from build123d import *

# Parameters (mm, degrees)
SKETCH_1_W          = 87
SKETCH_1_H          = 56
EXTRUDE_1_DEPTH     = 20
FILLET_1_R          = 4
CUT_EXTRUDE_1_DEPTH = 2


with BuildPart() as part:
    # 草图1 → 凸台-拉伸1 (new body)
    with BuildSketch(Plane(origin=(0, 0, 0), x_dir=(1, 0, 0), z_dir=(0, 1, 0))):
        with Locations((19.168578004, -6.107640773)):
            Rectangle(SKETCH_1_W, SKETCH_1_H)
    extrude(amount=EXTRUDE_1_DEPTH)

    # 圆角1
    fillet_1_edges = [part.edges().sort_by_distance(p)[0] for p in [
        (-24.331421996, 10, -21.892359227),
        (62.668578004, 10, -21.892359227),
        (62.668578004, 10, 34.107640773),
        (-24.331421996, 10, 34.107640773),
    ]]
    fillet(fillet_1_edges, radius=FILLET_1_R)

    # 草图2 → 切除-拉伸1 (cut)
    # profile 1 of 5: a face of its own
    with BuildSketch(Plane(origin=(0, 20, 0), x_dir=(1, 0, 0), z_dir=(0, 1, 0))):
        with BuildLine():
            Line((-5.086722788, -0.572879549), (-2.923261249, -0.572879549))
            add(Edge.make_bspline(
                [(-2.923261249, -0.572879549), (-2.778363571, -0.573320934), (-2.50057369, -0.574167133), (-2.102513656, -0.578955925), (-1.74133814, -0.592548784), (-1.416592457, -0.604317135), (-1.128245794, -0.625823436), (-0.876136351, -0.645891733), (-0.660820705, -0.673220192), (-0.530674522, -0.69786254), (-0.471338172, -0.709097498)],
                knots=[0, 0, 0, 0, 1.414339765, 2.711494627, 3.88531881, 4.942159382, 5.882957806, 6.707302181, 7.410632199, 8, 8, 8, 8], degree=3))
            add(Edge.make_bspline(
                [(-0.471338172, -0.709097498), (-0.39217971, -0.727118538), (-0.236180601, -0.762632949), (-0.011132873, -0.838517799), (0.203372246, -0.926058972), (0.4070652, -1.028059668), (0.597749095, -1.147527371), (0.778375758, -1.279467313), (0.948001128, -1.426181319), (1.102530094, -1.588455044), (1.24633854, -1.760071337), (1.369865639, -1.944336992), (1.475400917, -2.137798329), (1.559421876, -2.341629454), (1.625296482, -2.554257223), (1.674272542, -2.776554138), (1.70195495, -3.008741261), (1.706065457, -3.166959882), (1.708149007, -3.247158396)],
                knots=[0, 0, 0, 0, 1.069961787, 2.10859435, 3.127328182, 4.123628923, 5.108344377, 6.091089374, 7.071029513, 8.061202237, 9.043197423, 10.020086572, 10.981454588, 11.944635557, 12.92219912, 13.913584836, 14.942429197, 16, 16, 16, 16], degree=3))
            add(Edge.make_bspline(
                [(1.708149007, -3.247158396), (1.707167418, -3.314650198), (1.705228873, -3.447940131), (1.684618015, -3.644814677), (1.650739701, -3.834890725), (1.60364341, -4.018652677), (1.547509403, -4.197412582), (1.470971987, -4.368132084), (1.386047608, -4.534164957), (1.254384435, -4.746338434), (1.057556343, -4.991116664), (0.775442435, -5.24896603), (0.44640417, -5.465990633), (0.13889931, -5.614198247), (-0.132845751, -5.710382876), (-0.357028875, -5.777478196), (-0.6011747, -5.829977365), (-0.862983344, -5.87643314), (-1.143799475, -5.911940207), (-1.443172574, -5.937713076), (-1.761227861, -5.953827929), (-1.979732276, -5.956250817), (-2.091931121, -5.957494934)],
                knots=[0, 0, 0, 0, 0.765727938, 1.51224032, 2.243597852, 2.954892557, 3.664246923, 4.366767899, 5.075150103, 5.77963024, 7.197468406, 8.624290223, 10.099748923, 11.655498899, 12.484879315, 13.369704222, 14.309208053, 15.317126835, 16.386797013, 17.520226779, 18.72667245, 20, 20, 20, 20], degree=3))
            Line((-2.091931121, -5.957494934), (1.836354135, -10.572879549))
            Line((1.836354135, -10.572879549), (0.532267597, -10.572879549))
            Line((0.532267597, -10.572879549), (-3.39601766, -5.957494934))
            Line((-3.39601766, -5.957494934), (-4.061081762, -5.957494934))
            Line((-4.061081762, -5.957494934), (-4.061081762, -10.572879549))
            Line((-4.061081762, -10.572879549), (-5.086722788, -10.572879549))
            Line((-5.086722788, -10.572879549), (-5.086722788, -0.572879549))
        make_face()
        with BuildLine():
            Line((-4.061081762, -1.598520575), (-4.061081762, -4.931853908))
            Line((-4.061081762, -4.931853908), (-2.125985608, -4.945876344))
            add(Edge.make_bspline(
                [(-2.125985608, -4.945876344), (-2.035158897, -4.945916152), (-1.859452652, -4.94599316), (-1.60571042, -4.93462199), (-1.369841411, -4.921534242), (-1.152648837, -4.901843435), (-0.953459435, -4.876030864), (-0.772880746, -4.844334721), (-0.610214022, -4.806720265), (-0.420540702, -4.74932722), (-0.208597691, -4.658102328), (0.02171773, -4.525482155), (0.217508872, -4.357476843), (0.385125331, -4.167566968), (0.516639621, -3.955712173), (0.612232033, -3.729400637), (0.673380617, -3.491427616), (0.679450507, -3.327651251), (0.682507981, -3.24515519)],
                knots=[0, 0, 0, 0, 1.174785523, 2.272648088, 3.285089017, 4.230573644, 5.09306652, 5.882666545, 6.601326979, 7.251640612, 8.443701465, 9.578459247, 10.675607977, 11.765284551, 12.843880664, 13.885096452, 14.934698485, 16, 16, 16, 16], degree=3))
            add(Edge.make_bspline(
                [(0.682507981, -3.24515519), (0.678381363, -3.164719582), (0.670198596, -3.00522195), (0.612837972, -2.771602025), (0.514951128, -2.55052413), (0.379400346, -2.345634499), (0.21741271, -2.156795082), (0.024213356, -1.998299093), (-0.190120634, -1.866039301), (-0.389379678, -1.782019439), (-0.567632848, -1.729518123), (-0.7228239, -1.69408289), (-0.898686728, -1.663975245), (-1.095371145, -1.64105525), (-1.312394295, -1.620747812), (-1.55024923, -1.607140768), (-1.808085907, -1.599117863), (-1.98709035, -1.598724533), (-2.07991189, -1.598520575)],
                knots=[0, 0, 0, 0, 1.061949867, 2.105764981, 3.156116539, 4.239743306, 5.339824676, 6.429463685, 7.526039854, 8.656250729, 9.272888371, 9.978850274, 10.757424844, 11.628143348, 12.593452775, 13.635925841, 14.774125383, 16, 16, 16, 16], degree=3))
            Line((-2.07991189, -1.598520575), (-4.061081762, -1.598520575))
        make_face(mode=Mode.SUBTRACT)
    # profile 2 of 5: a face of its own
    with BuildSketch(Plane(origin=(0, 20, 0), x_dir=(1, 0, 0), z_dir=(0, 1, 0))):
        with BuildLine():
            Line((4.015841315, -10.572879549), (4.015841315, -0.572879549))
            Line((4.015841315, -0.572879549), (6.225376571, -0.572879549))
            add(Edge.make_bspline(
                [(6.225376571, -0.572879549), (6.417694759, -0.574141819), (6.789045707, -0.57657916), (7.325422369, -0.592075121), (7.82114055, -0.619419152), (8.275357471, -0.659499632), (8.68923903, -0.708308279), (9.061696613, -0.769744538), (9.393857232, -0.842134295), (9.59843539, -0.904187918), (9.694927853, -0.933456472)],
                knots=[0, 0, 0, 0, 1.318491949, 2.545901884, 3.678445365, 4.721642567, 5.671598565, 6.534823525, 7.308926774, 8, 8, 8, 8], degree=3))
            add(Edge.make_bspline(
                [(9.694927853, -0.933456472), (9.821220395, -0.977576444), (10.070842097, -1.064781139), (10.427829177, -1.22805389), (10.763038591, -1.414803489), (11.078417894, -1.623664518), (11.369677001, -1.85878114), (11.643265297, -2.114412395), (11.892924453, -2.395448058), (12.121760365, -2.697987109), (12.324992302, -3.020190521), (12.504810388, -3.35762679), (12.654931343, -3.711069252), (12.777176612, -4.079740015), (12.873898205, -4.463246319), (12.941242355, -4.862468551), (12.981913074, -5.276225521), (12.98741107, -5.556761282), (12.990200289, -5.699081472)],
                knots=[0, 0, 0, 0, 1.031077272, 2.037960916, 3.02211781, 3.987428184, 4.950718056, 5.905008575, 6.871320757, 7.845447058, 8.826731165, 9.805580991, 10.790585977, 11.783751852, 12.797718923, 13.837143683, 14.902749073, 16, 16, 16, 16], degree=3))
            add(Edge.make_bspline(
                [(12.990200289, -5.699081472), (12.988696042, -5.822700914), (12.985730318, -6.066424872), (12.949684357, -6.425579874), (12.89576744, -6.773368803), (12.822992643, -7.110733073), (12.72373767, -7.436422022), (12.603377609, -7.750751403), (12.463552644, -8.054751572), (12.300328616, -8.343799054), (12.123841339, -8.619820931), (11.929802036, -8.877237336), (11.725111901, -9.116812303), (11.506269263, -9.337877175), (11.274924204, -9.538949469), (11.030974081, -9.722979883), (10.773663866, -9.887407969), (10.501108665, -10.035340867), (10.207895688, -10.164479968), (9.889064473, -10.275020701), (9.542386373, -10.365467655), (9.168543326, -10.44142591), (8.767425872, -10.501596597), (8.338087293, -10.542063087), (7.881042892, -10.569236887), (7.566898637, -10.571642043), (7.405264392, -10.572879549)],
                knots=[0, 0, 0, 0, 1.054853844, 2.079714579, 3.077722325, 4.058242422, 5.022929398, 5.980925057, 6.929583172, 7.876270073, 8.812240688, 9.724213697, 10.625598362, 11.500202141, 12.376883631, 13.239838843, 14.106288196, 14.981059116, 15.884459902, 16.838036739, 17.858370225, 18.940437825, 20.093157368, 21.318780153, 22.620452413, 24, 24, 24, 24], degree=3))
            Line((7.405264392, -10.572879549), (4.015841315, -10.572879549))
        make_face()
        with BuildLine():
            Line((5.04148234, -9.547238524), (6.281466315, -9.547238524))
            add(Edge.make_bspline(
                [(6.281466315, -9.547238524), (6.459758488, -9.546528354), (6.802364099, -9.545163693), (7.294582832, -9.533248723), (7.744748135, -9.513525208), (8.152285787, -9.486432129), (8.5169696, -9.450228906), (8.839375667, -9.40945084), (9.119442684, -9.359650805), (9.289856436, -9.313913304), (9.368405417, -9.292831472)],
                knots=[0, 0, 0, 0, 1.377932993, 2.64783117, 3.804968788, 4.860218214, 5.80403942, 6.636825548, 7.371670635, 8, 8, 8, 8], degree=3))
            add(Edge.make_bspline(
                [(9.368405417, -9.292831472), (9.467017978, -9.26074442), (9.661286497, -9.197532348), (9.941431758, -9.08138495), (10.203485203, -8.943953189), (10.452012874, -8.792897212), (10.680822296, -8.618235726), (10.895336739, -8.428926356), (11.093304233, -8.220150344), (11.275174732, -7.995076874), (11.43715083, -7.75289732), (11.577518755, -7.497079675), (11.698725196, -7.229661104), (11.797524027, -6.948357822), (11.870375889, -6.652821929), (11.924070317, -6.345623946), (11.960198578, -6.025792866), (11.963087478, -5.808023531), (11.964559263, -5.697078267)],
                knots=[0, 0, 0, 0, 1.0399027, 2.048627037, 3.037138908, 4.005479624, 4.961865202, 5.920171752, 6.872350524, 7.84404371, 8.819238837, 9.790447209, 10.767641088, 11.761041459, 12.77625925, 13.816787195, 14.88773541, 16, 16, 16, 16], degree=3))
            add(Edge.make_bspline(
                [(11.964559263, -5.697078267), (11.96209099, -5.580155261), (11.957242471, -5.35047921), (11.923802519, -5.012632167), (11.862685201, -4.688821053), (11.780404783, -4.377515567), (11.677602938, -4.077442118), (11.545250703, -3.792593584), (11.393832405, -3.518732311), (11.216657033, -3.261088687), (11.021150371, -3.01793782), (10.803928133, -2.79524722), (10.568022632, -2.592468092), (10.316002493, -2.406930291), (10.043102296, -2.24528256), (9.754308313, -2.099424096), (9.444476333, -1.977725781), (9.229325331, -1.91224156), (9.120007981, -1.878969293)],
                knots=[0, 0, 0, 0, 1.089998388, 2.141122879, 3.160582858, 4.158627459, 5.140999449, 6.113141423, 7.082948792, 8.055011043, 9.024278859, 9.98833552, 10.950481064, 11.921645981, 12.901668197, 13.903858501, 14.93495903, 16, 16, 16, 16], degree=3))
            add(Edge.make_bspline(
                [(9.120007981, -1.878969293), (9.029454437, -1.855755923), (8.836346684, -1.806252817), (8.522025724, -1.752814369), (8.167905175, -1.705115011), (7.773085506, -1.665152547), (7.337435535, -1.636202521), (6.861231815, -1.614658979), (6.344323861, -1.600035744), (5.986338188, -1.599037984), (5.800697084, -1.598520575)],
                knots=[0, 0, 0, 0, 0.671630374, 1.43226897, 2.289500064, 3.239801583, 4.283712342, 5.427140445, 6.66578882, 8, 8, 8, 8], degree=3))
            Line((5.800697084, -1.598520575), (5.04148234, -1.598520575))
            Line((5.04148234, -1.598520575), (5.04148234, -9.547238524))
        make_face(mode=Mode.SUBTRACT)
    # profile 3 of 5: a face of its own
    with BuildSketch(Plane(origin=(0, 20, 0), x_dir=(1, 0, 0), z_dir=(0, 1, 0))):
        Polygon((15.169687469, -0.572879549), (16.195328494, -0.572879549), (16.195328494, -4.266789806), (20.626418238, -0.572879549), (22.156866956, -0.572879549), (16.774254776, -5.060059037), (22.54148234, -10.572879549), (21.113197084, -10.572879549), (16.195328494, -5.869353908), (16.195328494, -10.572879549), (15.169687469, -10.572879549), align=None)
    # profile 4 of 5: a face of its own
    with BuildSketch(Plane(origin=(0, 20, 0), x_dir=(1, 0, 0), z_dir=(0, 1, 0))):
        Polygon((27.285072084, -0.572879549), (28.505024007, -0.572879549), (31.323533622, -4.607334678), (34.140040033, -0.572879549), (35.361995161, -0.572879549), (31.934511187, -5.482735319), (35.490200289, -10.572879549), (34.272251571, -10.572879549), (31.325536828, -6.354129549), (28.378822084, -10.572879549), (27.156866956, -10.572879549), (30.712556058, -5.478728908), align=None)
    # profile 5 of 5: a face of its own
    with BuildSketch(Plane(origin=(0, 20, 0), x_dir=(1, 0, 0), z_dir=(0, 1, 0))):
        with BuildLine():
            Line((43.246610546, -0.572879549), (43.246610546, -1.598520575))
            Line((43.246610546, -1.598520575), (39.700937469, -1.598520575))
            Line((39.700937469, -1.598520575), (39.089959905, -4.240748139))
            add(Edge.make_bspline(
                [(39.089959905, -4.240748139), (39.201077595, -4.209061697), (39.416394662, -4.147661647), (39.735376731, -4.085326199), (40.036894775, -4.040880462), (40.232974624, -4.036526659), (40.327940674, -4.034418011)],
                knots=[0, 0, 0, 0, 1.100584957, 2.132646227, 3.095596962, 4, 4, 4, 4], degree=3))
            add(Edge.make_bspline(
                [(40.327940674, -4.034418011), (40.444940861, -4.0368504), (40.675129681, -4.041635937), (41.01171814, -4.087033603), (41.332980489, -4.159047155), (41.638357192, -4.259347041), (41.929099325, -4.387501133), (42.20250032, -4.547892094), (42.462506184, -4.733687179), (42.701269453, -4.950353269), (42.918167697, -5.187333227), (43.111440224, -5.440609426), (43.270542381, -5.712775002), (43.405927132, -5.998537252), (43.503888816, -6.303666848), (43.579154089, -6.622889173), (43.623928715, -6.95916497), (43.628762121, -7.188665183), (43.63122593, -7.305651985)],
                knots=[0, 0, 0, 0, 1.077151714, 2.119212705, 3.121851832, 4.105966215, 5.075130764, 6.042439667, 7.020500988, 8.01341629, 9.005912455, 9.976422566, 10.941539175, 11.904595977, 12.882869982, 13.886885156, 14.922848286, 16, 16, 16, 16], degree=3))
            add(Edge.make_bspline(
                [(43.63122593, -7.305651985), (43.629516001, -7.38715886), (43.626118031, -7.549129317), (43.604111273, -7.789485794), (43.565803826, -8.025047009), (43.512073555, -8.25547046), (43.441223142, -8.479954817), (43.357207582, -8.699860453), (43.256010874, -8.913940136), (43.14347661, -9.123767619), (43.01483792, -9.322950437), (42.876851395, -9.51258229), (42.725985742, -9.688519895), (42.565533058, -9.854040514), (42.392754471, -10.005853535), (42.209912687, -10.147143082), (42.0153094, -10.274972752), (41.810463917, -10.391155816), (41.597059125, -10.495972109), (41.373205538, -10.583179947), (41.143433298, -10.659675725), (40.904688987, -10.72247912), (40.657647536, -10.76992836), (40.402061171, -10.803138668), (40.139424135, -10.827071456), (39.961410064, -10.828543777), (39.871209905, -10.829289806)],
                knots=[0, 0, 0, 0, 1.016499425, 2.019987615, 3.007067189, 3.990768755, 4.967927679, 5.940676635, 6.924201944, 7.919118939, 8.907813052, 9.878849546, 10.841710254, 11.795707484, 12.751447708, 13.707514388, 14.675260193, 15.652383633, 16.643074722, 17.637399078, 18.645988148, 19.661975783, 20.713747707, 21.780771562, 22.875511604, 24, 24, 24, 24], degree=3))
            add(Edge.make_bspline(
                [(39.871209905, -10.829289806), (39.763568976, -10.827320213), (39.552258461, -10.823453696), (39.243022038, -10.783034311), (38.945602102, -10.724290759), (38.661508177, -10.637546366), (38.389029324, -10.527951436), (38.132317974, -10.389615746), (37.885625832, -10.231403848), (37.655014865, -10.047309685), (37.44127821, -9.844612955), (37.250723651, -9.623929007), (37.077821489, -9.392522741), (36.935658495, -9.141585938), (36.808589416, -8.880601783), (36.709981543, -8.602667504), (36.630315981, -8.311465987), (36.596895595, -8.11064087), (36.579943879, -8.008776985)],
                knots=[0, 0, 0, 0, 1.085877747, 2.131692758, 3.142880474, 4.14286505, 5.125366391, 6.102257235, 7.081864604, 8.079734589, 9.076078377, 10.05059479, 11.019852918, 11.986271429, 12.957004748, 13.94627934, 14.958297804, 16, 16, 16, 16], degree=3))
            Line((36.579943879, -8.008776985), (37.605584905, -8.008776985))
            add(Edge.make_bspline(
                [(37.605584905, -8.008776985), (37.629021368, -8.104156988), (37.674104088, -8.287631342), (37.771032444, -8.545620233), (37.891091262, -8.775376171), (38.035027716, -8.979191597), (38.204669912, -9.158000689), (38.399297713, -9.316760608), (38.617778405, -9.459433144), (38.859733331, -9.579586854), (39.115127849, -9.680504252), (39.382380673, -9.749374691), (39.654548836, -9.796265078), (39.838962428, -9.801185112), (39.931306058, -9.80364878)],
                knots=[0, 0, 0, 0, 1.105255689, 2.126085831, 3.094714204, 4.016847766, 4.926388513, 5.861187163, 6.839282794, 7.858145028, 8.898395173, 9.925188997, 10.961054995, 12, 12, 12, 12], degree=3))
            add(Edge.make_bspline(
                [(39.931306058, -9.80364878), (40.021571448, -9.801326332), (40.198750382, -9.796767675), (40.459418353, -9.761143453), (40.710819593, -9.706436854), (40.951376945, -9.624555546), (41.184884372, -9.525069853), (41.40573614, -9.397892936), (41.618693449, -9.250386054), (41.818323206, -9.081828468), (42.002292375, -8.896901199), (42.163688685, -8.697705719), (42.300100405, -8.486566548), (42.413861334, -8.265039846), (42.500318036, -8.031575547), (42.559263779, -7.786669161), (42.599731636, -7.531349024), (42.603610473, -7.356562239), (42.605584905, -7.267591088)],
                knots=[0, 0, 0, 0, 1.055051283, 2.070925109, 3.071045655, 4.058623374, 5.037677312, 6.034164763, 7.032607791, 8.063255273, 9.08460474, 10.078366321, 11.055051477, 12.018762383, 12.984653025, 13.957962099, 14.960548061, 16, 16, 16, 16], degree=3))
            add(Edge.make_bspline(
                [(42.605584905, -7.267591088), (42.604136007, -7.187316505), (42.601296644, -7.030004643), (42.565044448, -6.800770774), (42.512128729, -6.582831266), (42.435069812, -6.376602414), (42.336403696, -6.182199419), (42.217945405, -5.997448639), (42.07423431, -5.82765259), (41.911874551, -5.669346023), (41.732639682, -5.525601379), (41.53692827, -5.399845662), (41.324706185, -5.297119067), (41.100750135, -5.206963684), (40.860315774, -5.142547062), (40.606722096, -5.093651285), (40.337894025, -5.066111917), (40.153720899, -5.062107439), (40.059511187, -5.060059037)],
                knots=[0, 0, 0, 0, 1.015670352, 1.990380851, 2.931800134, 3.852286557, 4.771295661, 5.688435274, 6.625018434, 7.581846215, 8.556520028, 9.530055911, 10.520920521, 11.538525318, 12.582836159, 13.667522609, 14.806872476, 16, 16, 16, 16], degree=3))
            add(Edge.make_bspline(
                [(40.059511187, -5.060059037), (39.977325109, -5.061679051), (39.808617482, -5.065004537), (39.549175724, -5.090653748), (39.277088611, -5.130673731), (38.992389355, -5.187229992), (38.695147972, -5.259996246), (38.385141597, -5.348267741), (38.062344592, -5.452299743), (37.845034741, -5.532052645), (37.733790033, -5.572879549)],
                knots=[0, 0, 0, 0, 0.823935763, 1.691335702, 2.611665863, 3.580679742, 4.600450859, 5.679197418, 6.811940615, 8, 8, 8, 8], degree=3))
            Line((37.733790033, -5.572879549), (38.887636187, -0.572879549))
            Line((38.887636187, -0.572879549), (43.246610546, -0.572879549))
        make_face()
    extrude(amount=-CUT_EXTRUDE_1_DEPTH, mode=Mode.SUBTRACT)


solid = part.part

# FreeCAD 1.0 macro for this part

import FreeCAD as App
import Part
import Sketcher
Q = App.Units.Quantity


def edges_at(feature, points):
    """Names of the edges that pass closest to the given points."""
    edges = feature.Shape.Edges
    near = lambda p: min(range(len(edges)), key=lambda i: edges[i].distToShape(Part.Vertex(*p))[0])
    return sorted({f"Edge{near(p) + 1}" for p in points})


def add_polygon(sketch, points):
    """Adds a closed chain of lines whose ends are joined by coincident constraints."""
    first, n = sketch.GeometryCount, len(points)
    for a, b in zip(points, points[1:] + points[:1]):
        sketch.addGeometry(Part.LineSegment(App.Vector(*a, 0), App.Vector(*b, 0)), False)
    for i in range(n):
        sketch.addConstraint(Sketcher.Constraint("Coincident", first + i, 2, first + (i + 1) % n, 1))

doc = App.newDocument("Part")
body = doc.addObject("PartDesign::Body", "Body")

sketch1 = doc.addObject("Sketcher::SketchObject", "Sketch")
body.addObject(sketch1)
sketch1.AttachmentSupport = (doc.XZ_Plane, [""])
sketch1.MapMode = "FlatFace"
add_polygon(sketch1, [(-24, -22), (-24, 34), (63, 34), (63, -22)])
sketch1.addConstraint([
    Sketcher.Constraint("Vertical", 0),
    Sketcher.Constraint("Horizontal", 1),
    Sketcher.Constraint("Vertical", 2),
    Sketcher.Constraint("Horizontal", 3),
    Sketcher.Constraint("DistanceX", 1, 1, 1, 2, Q("87 mm")),
    Sketcher.Constraint("DistanceY", 0, 1, 0, 2, Q("56 mm")),
    Sketcher.Constraint("DistanceX", 0, 2, -1, 1, Q("24.331422 mm")),
    Sketcher.Constraint("DistanceY", -1, 1, 0, 2, Q("34.107641 mm")),
])
pad1 = doc.addObject("PartDesign::Pad", "Pad")
body.addObject(pad1)
pad1.Profile = sketch1
pad1.Length = 20
pad1.Reversed = True
doc.recompute()

fillet = doc.addObject("PartDesign::Fillet", "Fillet")
body.addObject(fillet)
fillet.Base = (pad1, edges_at(pad1, [
    (-24.331, 10, -21.892),
    (62.669, 10, -21.892),
    (62.669, 10, 34.108),
    (-24.331, 10, 34.108),
]))
fillet.Radius = 4

sketch2 = doc.addObject("Sketcher::SketchObject", "Sketch001")
body.addObject(sketch2)
sketch2.AttachmentSupport = (doc.XZ_Plane, [""])
sketch2.MapMode = "FlatFace"
sketch2.AttachmentOffset = App.Placement(App.Vector(0, 0, -20), App.Rotation())
sketch2.addGeometry(Part.LineSegment(App.Vector(-2.923261, 0.57288, 0), App.Vector(-5.086723, 0.57288, 0)), False)
sketch2.addGeometry(Part.LineSegment(App.Vector(-5.086723, 0.57288, 0), App.Vector(-5.086723, 10.57288, 0)), False)
sketch2.addGeometry(Part.LineSegment(App.Vector(-5.086723, 10.57288, 0), App.Vector(-4.061082, 10.57288, 0)), False)
sketch2.addGeometry(Part.LineSegment(App.Vector(-4.061082, 10.57288, 0), App.Vector(-4.061082, 5.957495, 0)), False)
sketch2.addGeometry(Part.LineSegment(App.Vector(-4.061082, 5.957495, 0), App.Vector(-3.396018, 5.957495, 0)), False)
sketch2.addGeometry(Part.LineSegment(App.Vector(-3.396018, 5.957495, 0), App.Vector(0.532268, 10.57288, 0)), False)
sketch2.addGeometry(Part.LineSegment(App.Vector(0.532268, 10.57288, 0), App.Vector(1.836354, 10.57288, 0)), False)
sketch2.addGeometry(Part.LineSegment(App.Vector(1.836354, 10.57288, 0), App.Vector(-2.091931, 5.957495, 0)), False)
sketch2.addGeometry(Part.BSplineCurve([App.Vector(1.708149, 3.247158, 0), App.Vector(1.707167, 3.31465, 0), App.Vector(1.705229, 3.44794, 0), App.Vector(1.684618, 3.644815, 0), App.Vector(1.65074, 3.834891, 0), App.Vector(1.603643, 4.018653, 0), App.Vector(1.547509, 4.197413, 0), App.Vector(1.470972, 4.368132, 0), App.Vector(1.386048, 4.534165, 0), App.Vector(1.254384, 4.746338, 0), App.Vector(1.057556, 4.991117, 0), App.Vector(0.775442, 5.248966, 0), App.Vector(0.446404, 5.465991, 0), App.Vector(0.138899, 5.614198, 0), App.Vector(-0.132846, 5.710383, 0), App.Vector(-0.357029, 5.777478, 0), App.Vector(-0.601175, 5.829977, 0), App.Vector(-0.862983, 5.876433, 0), App.Vector(-1.143799, 5.91194, 0), App.Vector(-1.443173, 5.937713, 0), App.Vector(-1.761228, 5.953828, 0), App.Vector(-1.979732, 5.956251, 0), App.Vector(-2.091931, 5.957495, 0)], [4, 1, 1, 1, 1, 1, 1, 1, 1, 1, 1, 1, 1, 1, 1, 1, 1, 1, 1, 1, 4], [0, 0.765727938, 1.51224032, 2.243597852, 2.954892557, 3.664246923, 4.366767899, 5.075150103, 5.77963024, 7.197468406, 8.624290223, 10.099748923, 11.655498899, 12.484879315, 13.369704222, 14.309208053, 15.317126835, 16.386797013, 17.520226779, 18.72667245, 20], False, 3, [1, 1, 1, 1, 1, 1, 1, 1, 1, 1, 1, 1, 1, 1, 1, 1, 1, 1, 1, 1, 1, 1, 1], False), False)
sketch2.addGeometry(Part.BSplineCurve([App.Vector(-0.471338, 0.709097, 0), App.Vector(-0.39218, 0.727119, 0), App.Vector(-0.236181, 0.762633, 0), App.Vector(-0.011133, 0.838518, 0), App.Vector(0.203372, 0.926059, 0), App.Vector(0.407065, 1.02806, 0), App.Vector(0.597749, 1.147527, 0), App.Vector(0.778376, 1.279467, 0), App.Vector(0.948001, 1.426181, 0), App.Vector(1.10253, 1.588455, 0), App.Vector(1.246339, 1.760071, 0), App.Vector(1.369866, 1.944337, 0), App.Vector(1.475401, 2.137798, 0), App.Vector(1.559422, 2.341629, 0), App.Vector(1.625296, 2.554257, 0), App.Vector(1.674273, 2.776554, 0), App.Vector(1.701955, 3.008741, 0), App.Vector(1.706065, 3.16696, 0), App.Vector(1.708149, 3.247158, 0)], [4, 1, 1, 1, 1, 1, 1, 1, 1, 1, 1, 1, 1, 1, 1, 1, 4], [0, 1.069961787, 2.10859435, 3.127328182, 4.123628923, 5.108344377, 6.091089374, 7.071029513, 8.061202237, 9.043197423, 10.020086572, 10.981454588, 11.944635557, 12.92219912, 13.913584836, 14.942429197, 16], False, 3, [1, 1, 1, 1, 1, 1, 1, 1, 1, 1, 1, 1, 1, 1, 1, 1, 1, 1, 1], False), False)
sketch2.addGeometry(Part.BSplineCurve([App.Vector(-2.923261, 0.57288, 0), App.Vector(-2.778364, 0.573321, 0), App.Vector(-2.500574, 0.574167, 0), App.Vector(-2.102514, 0.578956, 0), App.Vector(-1.741338, 0.592549, 0), App.Vector(-1.416592, 0.604317, 0), App.Vector(-1.128246, 0.625823, 0), App.Vector(-0.876136, 0.645892, 0), App.Vector(-0.660821, 0.67322, 0), App.Vector(-0.530675, 0.697863, 0), App.Vector(-0.471338, 0.709097, 0)], [4, 1, 1, 1, 1, 1, 1, 1, 4], [0, 1.414339765, 2.711494627, 3.88531881, 4.942159382, 5.882957806, 6.707302181, 7.410632199, 8], False, 3, [1, 1, 1, 1, 1, 1, 1, 1, 1, 1, 1], False), False)
sketch2.addGeometry(Part.LineSegment(App.Vector(-4.061082, 1.598521, 0), App.Vector(-2.079912, 1.598521, 0)), False)
sketch2.addGeometry(Part.BSplineCurve([App.Vector(0.682508, 3.245155, 0), App.Vector(0.678381, 3.16472, 0), App.Vector(0.670199, 3.005222, 0), App.Vector(0.612838, 2.771602, 0), App.Vector(0.514951, 2.550524, 0), App.Vector(0.3794, 2.345634, 0), App.Vector(0.217413, 2.156795, 0), App.Vector(0.024213, 1.998299, 0), App.Vector(-0.190121, 1.866039, 0), App.Vector(-0.38938, 1.782019, 0), App.Vector(-0.567633, 1.729518, 0), App.Vector(-0.722824, 1.694083, 0), App.Vector(-0.898687, 1.663975, 0), App.Vector(-1.095371, 1.641055, 0), App.Vector(-1.312394, 1.620748, 0), App.Vector(-1.550249, 1.607141, 0), App.Vector(-1.808086, 1.599118, 0), App.Vector(-1.98709, 1.598725, 0), App.Vector(-2.079912, 1.598521, 0)], [4, 1, 1, 1, 1, 1, 1, 1, 1, 1, 1, 1, 1, 1, 1, 1, 4], [0, 1.061949867, 2.105764981, 3.156116539, 4.239743306, 5.339824676, 6.429463685, 7.526039854, 8.656250729, 9.272888371, 9.978850274, 10.757424844, 11.628143348, 12.593452775, 13.635925841, 14.774125383, 16], False, 3, [1, 1, 1, 1, 1, 1, 1, 1, 1, 1, 1, 1, 1, 1, 1, 1, 1, 1, 1], False), False)
sketch2.addGeometry(Part.BSplineCurve([App.Vector(-2.125986, 4.945876, 0), App.Vector(-2.035159, 4.945916, 0), App.Vector(-1.859453, 4.945993, 0), App.Vector(-1.60571, 4.934622, 0), App.Vector(-1.369841, 4.921534, 0), App.Vector(-1.152649, 4.901843, 0), App.Vector(-0.953459, 4.876031, 0), App.Vector(-0.772881, 4.844335, 0), App.Vector(-0.610214, 4.80672, 0), App.Vector(-0.420541, 4.749327, 0), App.Vector(-0.208598, 4.658102, 0), App.Vector(0.021718, 4.525482, 0), App.Vector(0.217509, 4.357477, 0), App.Vector(0.385125, 4.167567, 0), App.Vector(0.51664, 3.955712, 0), App.Vector(0.612232, 3.729401, 0), App.Vector(0.673381, 3.491428, 0), App.Vector(0.679451, 3.327651, 0), App.Vector(0.682508, 3.245155, 0)], [4, 1, 1, 1, 1, 1, 1, 1, 1, 1, 1, 1, 1, 1, 1, 1, 4], [0, 1.174785523, 2.272648088, 3.285089017, 4.230573644, 5.09306652, 5.882666545, 6.601326979, 7.251640612, 8.443701465, 9.578459247, 10.675607977, 11.765284551, 12.843880664, 13.885096452, 14.934698485, 16], False, 3, [1, 1, 1, 1, 1, 1, 1, 1, 1, 1, 1, 1, 1, 1, 1, 1, 1, 1, 1], False), False)
sketch2.addGeometry(Part.LineSegment(App.Vector(-2.125986, 4.945876, 0), App.Vector(-4.061082, 4.931854, 0)), False)
sketch2.addGeometry(Part.LineSegment(App.Vector(-4.061082, 4.931854, 0), App.Vector(-4.061082, 1.598521, 0)), False)
sketch2.addGeometry(Part.LineSegment(App.Vector(4.015841, 0.57288, 0), App.Vector(4.015841, 10.57288, 0)), False)
sketch2.addGeometry(Part.LineSegment(App.Vector(4.015841, 10.57288, 0), App.Vector(7.405264, 10.57288, 0)), False)
sketch2.addGeometry(Part.BSplineCurve([App.Vector(12.9902, 5.699081, 0), App.Vector(12.988696, 5.822701, 0), App.Vector(12.98573, 6.066425, 0), App.Vector(12.949684, 6.42558, 0), App.Vector(12.895767, 6.773369, 0), App.Vector(12.822993, 7.110733, 0), App.Vector(12.723738, 7.436422, 0), App.Vector(12.603378, 7.750751, 0), App.Vector(12.463553, 8.054752, 0), App.Vector(12.300329, 8.343799, 0), App.Vector(12.123841, 8.619821, 0), App.Vector(11.929802, 8.877237, 0), App.Vector(11.725112, 9.116812, 0), App.Vector(11.506269, 9.337877, 0), App.Vector(11.274924, 9.538949, 0), App.Vector(11.030974, 9.72298, 0), App.Vector(10.773664, 9.887408, 0), App.Vector(10.501109, 10.035341, 0), App.Vector(10.207896, 10.16448, 0), App.Vector(9.889064, 10.275021, 0), App.Vector(9.542386, 10.365468, 0), App.Vector(9.168543, 10.441426, 0), App.Vector(8.767426, 10.501597, 0), App.Vector(8.338087, 10.542063, 0), App.Vector(7.881043, 10.569237, 0), App.Vector(7.566899, 10.571642, 0), App.Vector(7.405264, 10.57288, 0)], [4, 1, 1, 1, 1, 1, 1, 1, 1, 1, 1, 1, 1, 1, 1, 1, 1, 1, 1, 1, 1, 1, 1, 1, 4], [0, 1.054853844, 2.079714579, 3.077722325, 4.058242422, 5.022929398, 5.980925057, 6.929583172, 7.876270073, 8.812240688, 9.724213697, 10.625598362, 11.500202141, 12.376883631, 13.239838843, 14.106288196, 14.981059116, 15.884459902, 16.838036739, 17.858370225, 18.940437825, 20.093157368, 21.318780153, 22.620452413, 24], False, 3, [1, 1, 1, 1, 1, 1, 1, 1, 1, 1, 1, 1, 1, 1, 1, 1, 1, 1, 1, 1, 1, 1, 1, 1, 1, 1, 1], False), False)
sketch2.addGeometry(Part.BSplineCurve([App.Vector(9.694928, 0.933456, 0), App.Vector(9.82122, 0.977576, 0), App.Vector(10.070842, 1.064781, 0), App.Vector(10.427829, 1.228054, 0), App.Vector(10.763039, 1.414803, 0), App.Vector(11.078418, 1.623665, 0), App.Vector(11.369677, 1.858781, 0), App.Vector(11.643265, 2.114412, 0), App.Vector(11.892924, 2.395448, 0), App.Vector(12.12176, 2.697987, 0), App.Vector(12.324992, 3.020191, 0), App.Vector(12.50481, 3.357627, 0), App.Vector(12.654931, 3.711069, 0), App.Vector(12.777177, 4.07974, 0), App.Vector(12.873898, 4.463246, 0), App.Vector(12.941242, 4.862469, 0), App.Vector(12.981913, 5.276226, 0), App.Vector(12.987411, 5.556761, 0), App.Vector(12.9902, 5.699081, 0)], [4, 1, 1, 1, 1, 1, 1, 1, 1, 1, 1, 1, 1, 1, 1, 1, 4], [0, 1.031077272, 2.037960916, 3.02211781, 3.987428184, 4.950718056, 5.905008575, 6.871320757, 7.845447058, 8.826731165, 9.805580991, 10.790585977, 11.783751852, 12.797718923, 13.837143683, 14.902749073, 16], False, 3, [1, 1, 1, 1, 1, 1, 1, 1, 1, 1, 1, 1, 1, 1, 1, 1, 1, 1, 1], False), False)
sketch2.addGeometry(Part.BSplineCurve([App.Vector(6.225377, 0.57288, 0), App.Vector(6.417695, 0.574142, 0), App.Vector(6.789046, 0.576579, 0), App.Vector(7.325422, 0.592075, 0), App.Vector(7.821141, 0.619419, 0), App.Vector(8.275357, 0.6595, 0), App.Vector(8.689239, 0.708308, 0), App.Vector(9.061697, 0.769745, 0), App.Vector(9.393857, 0.842134, 0), App.Vector(9.598435, 0.904188, 0), App.Vector(9.694928, 0.933456, 0)], [4, 1, 1, 1, 1, 1, 1, 1, 4], [0, 1.318491949, 2.545901884, 3.678445365, 4.721642567, 5.671598565, 6.534823525, 7.308926774, 8], False, 3, [1, 1, 1, 1, 1, 1, 1, 1, 1, 1, 1], False), False)
sketch2.addGeometry(Part.LineSegment(App.Vector(6.225377, 0.57288, 0), App.Vector(4.015841, 0.57288, 0)), False)
sketch2.addGeometry(Part.LineSegment(App.Vector(5.041482, 9.547239, 0), App.Vector(5.041482, 1.598521, 0)), False)
sketch2.addGeometry(Part.LineSegment(App.Vector(5.041482, 1.598521, 0), App.Vector(5.800697, 1.598521, 0)), False)
sketch2.addGeometry(Part.BSplineCurve([App.Vector(9.120008, 1.878969, 0), App.Vector(9.029454, 1.855756, 0), App.Vector(8.836347, 1.806253, 0), App.Vector(8.522026, 1.752814, 0), App.Vector(8.167905, 1.705115, 0), App.Vector(7.773086, 1.665153, 0), App.Vector(7.337436, 1.636203, 0), App.Vector(6.861232, 1.614659, 0), App.Vector(6.344324, 1.600036, 0), App.Vector(5.986338, 1.599038, 0), App.Vector(5.800697, 1.598521, 0)], [4, 1, 1, 1, 1, 1, 1, 1, 4], [0, 0.671630374, 1.43226897, 2.289500064, 3.239801583, 4.283712342, 5.427140445, 6.66578882, 8], False, 3, [1, 1, 1, 1, 1, 1, 1, 1, 1, 1, 1], False), False)
sketch2.addGeometry(Part.BSplineCurve([App.Vector(11.964559, 5.697078, 0), App.Vector(11.962091, 5.580155, 0), App.Vector(11.957242, 5.350479, 0), App.Vector(11.923803, 5.012632, 0), App.Vector(11.862685, 4.688821, 0), App.Vector(11.780405, 4.377516, 0), App.Vector(11.677603, 4.077442, 0), App.Vector(11.545251, 3.792594, 0), App.Vector(11.393832, 3.518732, 0), App.Vector(11.216657, 3.261089, 0), App.Vector(11.02115, 3.017938, 0), App.Vector(10.803928, 2.795247, 0), App.Vector(10.568023, 2.592468, 0), App.Vector(10.316002, 2.40693, 0), App.Vector(10.043102, 2.245283, 0), App.Vector(9.754308, 2.099424, 0), App.Vector(9.444476, 1.977726, 0), App.Vector(9.229325, 1.912242, 0), App.Vector(9.120008, 1.878969, 0)], [4, 1, 1, 1, 1, 1, 1, 1, 1, 1, 1, 1, 1, 1, 1, 1, 4], [0, 1.089998388, 2.141122879, 3.160582858, 4.158627459, 5.140999449, 6.113141423, 7.082948792, 8.055011043, 9.024278859, 9.98833552, 10.950481064, 11.921645981, 12.901668197, 13.903858501, 14.93495903, 16], False, 3, [1, 1, 1, 1, 1, 1, 1, 1, 1, 1, 1, 1, 1, 1, 1, 1, 1, 1, 1], False), False)
sketch2.addGeometry(Part.BSplineCurve([App.Vector(9.368405, 9.292831, 0), App.Vector(9.467018, 9.260744, 0), App.Vector(9.661286, 9.197532, 0), App.Vector(9.941432, 9.081385, 0), App.Vector(10.203485, 8.943953, 0), App.Vector(10.452013, 8.792897, 0), App.Vector(10.680822, 8.618236, 0), App.Vector(10.895337, 8.428926, 0), App.Vector(11.093304, 8.22015, 0), App.Vector(11.275175, 7.995077, 0), App.Vector(11.437151, 7.752897, 0), App.Vector(11.577519, 7.49708, 0), App.Vector(11.698725, 7.229661, 0), App.Vector(11.797524, 6.948358, 0), App.Vector(11.870376, 6.652822, 0), App.Vector(11.92407, 6.345624, 0), App.Vector(11.960199, 6.025793, 0), App.Vector(11.963087, 5.808024, 0), App.Vector(11.964559, 5.697078, 0)], [4, 1, 1, 1, 1, 1, 1, 1, 1, 1, 1, 1, 1, 1, 1, 1, 4], [0, 1.0399027, 2.048627037, 3.037138908, 4.005479624, 4.961865202, 5.920171752, 6.872350524, 7.84404371, 8.819238837, 9.790447209, 10.767641088, 11.761041459, 12.77625925, 13.816787195, 14.88773541, 16], False, 3, [1, 1, 1, 1, 1, 1, 1, 1, 1, 1, 1, 1, 1, 1, 1, 1, 1, 1, 1], False), False)
sketch2.addGeometry(Part.BSplineCurve([App.Vector(6.281466, 9.547239, 0), App.Vector(6.459758, 9.546528, 0), App.Vector(6.802364, 9.545164, 0), App.Vector(7.294583, 9.533249, 0), App.Vector(7.744748, 9.513525, 0), App.Vector(8.152286, 9.486432, 0), App.Vector(8.51697, 9.450229, 0), App.Vector(8.839376, 9.409451, 0), App.Vector(9.119443, 9.359651, 0), App.Vector(9.289856, 9.313913, 0), App.Vector(9.368405, 9.292831, 0)], [4, 1, 1, 1, 1, 1, 1, 1, 4], [0, 1.377932993, 2.64783117, 3.804968788, 4.860218214, 5.80403942, 6.636825548, 7.371670635, 8], False, 3, [1, 1, 1, 1, 1, 1, 1, 1, 1, 1, 1], False), False)
sketch2.addGeometry(Part.LineSegment(App.Vector(6.281466, 9.547239, 0), App.Vector(5.041482, 9.547239, 0)), False)
add_polygon(sketch2, [(16.195328, 0.57288), (15.169687, 0.57288), (15.169687, 10.57288), (16.195328, 10.57288), (16.195328, 5.869354), (21.113197, 10.57288), (22.541482, 10.57288), (16.774255, 5.060059), (22.156867, 0.57288), (20.626418, 0.57288), (16.195328, 4.26679)])
add_polygon(sketch2, [(28.505024, 0.57288), (27.285072, 0.57288), (30.712556, 5.478729), (27.156867, 10.57288), (28.378822, 10.57288), (31.325537, 6.35413), (34.272252, 10.57288), (35.4902, 10.57288), (31.934511, 5.482735), (35.361995, 0.57288), (34.14004, 0.57288), (31.323534, 4.607335)])
sketch2.addGeometry(Part.LineSegment(App.Vector(43.246611, 1.598521, 0), App.Vector(43.246611, 0.57288, 0)), False)
sketch2.addGeometry(Part.LineSegment(App.Vector(43.246611, 0.57288, 0), App.Vector(38.887636, 0.57288, 0)), False)
sketch2.addGeometry(Part.LineSegment(App.Vector(38.887636, 0.57288, 0), App.Vector(37.73379, 5.57288, 0)), False)
sketch2.addGeometry(Part.BSplineCurve([App.Vector(40.059511, 5.060059, 0), App.Vector(39.977325, 5.061679, 0), App.Vector(39.808617, 5.065005, 0), App.Vector(39.549176, 5.090654, 0), App.Vector(39.277089, 5.130674, 0), App.Vector(38.992389, 5.18723, 0), App.Vector(38.695148, 5.259996, 0), App.Vector(38.385142, 5.348268, 0), App.Vector(38.062345, 5.4523, 0), App.Vector(37.845035, 5.532053, 0), App.Vector(37.73379, 5.57288, 0)], [4, 1, 1, 1, 1, 1, 1, 1, 4], [0, 0.823935763, 1.691335702, 2.611665863, 3.580679742, 4.600450859, 5.679197418, 6.811940615, 8], False, 3, [1, 1, 1, 1, 1, 1, 1, 1, 1, 1, 1], False), False)
sketch2.addGeometry(Part.BSplineCurve([App.Vector(42.605585, 7.267591, 0), App.Vector(42.604136, 7.187317, 0), App.Vector(42.601297, 7.030005, 0), App.Vector(42.565044, 6.800771, 0), App.Vector(42.512129, 6.582831, 0), App.Vector(42.43507, 6.376602, 0), App.Vector(42.336404, 6.182199, 0), App.Vector(42.217945, 5.997449, 0), App.Vector(42.074234, 5.827653, 0), App.Vector(41.911875, 5.669346, 0), App.Vector(41.73264, 5.525601, 0), App.Vector(41.536928, 5.399846, 0), App.Vector(41.324706, 5.297119, 0), App.Vector(41.10075, 5.206964, 0), App.Vector(40.860316, 5.142547, 0), App.Vector(40.606722, 5.093651, 0), App.Vector(40.337894, 5.066112, 0), App.Vector(40.153721, 5.062107, 0), App.Vector(40.059511, 5.060059, 0)], [4, 1, 1, 1, 1, 1, 1, 1, 1, 1, 1, 1, 1, 1, 1, 1, 4], [0, 1.015670352, 1.990380851, 2.931800134, 3.852286557, 4.771295661, 5.688435274, 6.625018434, 7.581846215, 8.556520028, 9.530055911, 10.520920521, 11.538525318, 12.582836159, 13.667522609, 14.806872476, 16], False, 3, [1, 1, 1, 1, 1, 1, 1, 1, 1, 1, 1, 1, 1, 1, 1, 1, 1, 1, 1], False), False)
sketch2.addGeometry(Part.BSplineCurve([App.Vector(39.931306, 9.803649, 0), App.Vector(40.021571, 9.801326, 0), App.Vector(40.19875, 9.796768, 0), App.Vector(40.459418, 9.761143, 0), App.Vector(40.71082, 9.706437, 0), App.Vector(40.951377, 9.624556, 0), App.Vector(41.184884, 9.52507, 0), App.Vector(41.405736, 9.397893, 0), App.Vector(41.618693, 9.250386, 0), App.Vector(41.818323, 9.081828, 0), App.Vector(42.002292, 8.896901, 0), App.Vector(42.163689, 8.697706, 0), App.Vector(42.3001, 8.486567, 0), App.Vector(42.413861, 8.26504, 0), App.Vector(42.500318, 8.031576, 0), App.Vector(42.559264, 7.786669, 0), App.Vector(42.599732, 7.531349, 0), App.Vector(42.60361, 7.356562, 0), App.Vector(42.605585, 7.267591, 0)], [4, 1, 1, 1, 1, 1, 1, 1, 1, 1, 1, 1, 1, 1, 1, 1, 4], [0, 1.055051283, 2.070925109, 3.071045655, 4.058623374, 5.037677312, 6.034164763, 7.032607791, 8.063255273, 9.08460474, 10.078366321, 11.055051477, 12.018762383, 12.984653025, 13.957962099, 14.960548061, 16], False, 3, [1, 1, 1, 1, 1, 1, 1, 1, 1, 1, 1, 1, 1, 1, 1, 1, 1, 1, 1], False), False)
sketch2.addGeometry(Part.BSplineCurve([App.Vector(37.605585, 8.008777, 0), App.Vector(37.629021, 8.104157, 0), App.Vector(37.674104, 8.287631, 0), App.Vector(37.771032, 8.54562, 0), App.Vector(37.891091, 8.775376, 0), App.Vector(38.035028, 8.979192, 0), App.Vector(38.20467, 9.158001, 0), App.Vector(38.399298, 9.316761, 0), App.Vector(38.617778, 9.459433, 0), App.Vector(38.859733, 9.579587, 0), App.Vector(39.115128, 9.680504, 0), App.Vector(39.382381, 9.749375, 0), App.Vector(39.654549, 9.796265, 0), App.Vector(39.838962, 9.801185, 0), App.Vector(39.931306, 9.803649, 0)], [4, 1, 1, 1, 1, 1, 1, 1, 1, 1, 1, 1, 4], [0, 1.105255689, 2.126085831, 3.094714204, 4.016847766, 4.926388513, 5.861187163, 6.839282794, 7.858145028, 8.898395173, 9.925188997, 10.961054995, 12], False, 3, [1, 1, 1, 1, 1, 1, 1, 1, 1, 1, 1, 1, 1, 1, 1], False), False)
sketch2.addGeometry(Part.LineSegment(App.Vector(37.605585, 8.008777, 0), App.Vector(36.579944, 8.008777, 0)), False)
sketch2.addGeometry(Part.BSplineCurve([App.Vector(39.87121, 10.82929, 0), App.Vector(39.763569, 10.82732, 0), App.Vector(39.552258, 10.823454, 0), App.Vector(39.243022, 10.783034, 0), App.Vector(38.945602, 10.724291, 0), App.Vector(38.661508, 10.637546, 0), App.Vector(38.389029, 10.527951, 0), App.Vector(38.132318, 10.389616, 0), App.Vector(37.885626, 10.231404, 0), App.Vector(37.655015, 10.04731, 0), App.Vector(37.441278, 9.844613, 0), App.Vector(37.250724, 9.623929, 0), App.Vector(37.077821, 9.392523, 0), App.Vector(36.935658, 9.141586, 0), App.Vector(36.808589, 8.880602, 0), App.Vector(36.709982, 8.602668, 0), App.Vector(36.630316, 8.311466, 0), App.Vector(36.596896, 8.110641, 0), App.Vector(36.579944, 8.008777, 0)], [4, 1, 1, 1, 1, 1, 1, 1, 1, 1, 1, 1, 1, 1, 1, 1, 4], [0, 1.085877747, 2.131692758, 3.142880474, 4.14286505, 5.125366391, 6.102257235, 7.081864604, 8.079734589, 9.076078377, 10.05059479, 11.019852918, 11.986271429, 12.957004748, 13.94627934, 14.958297804, 16], False, 3, [1, 1, 1, 1, 1, 1, 1, 1, 1, 1, 1, 1, 1, 1, 1, 1, 1, 1, 1], False), False)
sketch2.addGeometry(Part.BSplineCurve([App.Vector(43.631226, 7.305652, 0), App.Vector(43.629516, 7.387159, 0), App.Vector(43.626118, 7.549129, 0), App.Vector(43.604111, 7.789486, 0), App.Vector(43.565804, 8.025047, 0), App.Vector(43.512074, 8.25547, 0), App.Vector(43.441223, 8.479955, 0), App.Vector(43.357208, 8.69986, 0), App.Vector(43.256011, 8.91394, 0), App.Vector(43.143477, 9.123768, 0), App.Vector(43.014838, 9.32295, 0), App.Vector(42.876851, 9.512582, 0), App.Vector(42.725986, 9.68852, 0), App.Vector(42.565533, 9.854041, 0), App.Vector(42.392754, 10.005854, 0), App.Vector(42.209913, 10.147143, 0), App.Vector(42.015309, 10.274973, 0), App.Vector(41.810464, 10.391156, 0), App.Vector(41.597059, 10.495972, 0), App.Vector(41.373206, 10.58318, 0), App.Vector(41.143433, 10.659676, 0), App.Vector(40.904689, 10.722479, 0), App.Vector(40.657648, 10.769928, 0), App.Vector(40.402061, 10.803139, 0), App.Vector(40.139424, 10.827071, 0), App.Vector(39.96141, 10.828544, 0), App.Vector(39.87121, 10.82929, 0)], [4, 1, 1, 1, 1, 1, 1, 1, 1, 1, 1, 1, 1, 1, 1, 1, 1, 1, 1, 1, 1, 1, 1, 1, 4], [0, 1.016499425, 2.019987615, 3.007067189, 3.990768755, 4.967927679, 5.940676635, 6.924201944, 7.919118939, 8.907813052, 9.878849546, 10.841710254, 11.795707484, 12.751447708, 13.707514388, 14.675260193, 15.652383633, 16.643074722, 17.637399078, 18.645988148, 19.661975783, 20.713747707, 21.780771562, 22.875511604, 24], False, 3, [1, 1, 1, 1, 1, 1, 1, 1, 1, 1, 1, 1, 1, 1, 1, 1, 1, 1, 1, 1, 1, 1, 1, 1, 1, 1, 1], False), False)
sketch2.addGeometry(Part.BSplineCurve([App.Vector(40.327941, 4.034418, 0), App.Vector(40.444941, 4.03685, 0), App.Vector(40.67513, 4.041636, 0), App.Vector(41.011718, 4.087034, 0), App.Vector(41.33298, 4.159047, 0), App.Vector(41.638357, 4.259347, 0), App.Vector(41.929099, 4.387501, 0), App.Vector(42.2025, 4.547892, 0), App.Vector(42.462506, 4.733687, 0), App.Vector(42.701269, 4.950353, 0), App.Vector(42.918168, 5.187333, 0), App.Vector(43.11144, 5.440609, 0), App.Vector(43.270542, 5.712775, 0), App.Vector(43.405927, 5.998537, 0), App.Vector(43.503889, 6.303667, 0), App.Vector(43.579154, 6.622889, 0), App.Vector(43.623929, 6.959165, 0), App.Vector(43.628762, 7.188665, 0), App.Vector(43.631226, 7.305652, 0)], [4, 1, 1, 1, 1, 1, 1, 1, 1, 1, 1, 1, 1, 1, 1, 1, 4], [0, 1.077151714, 2.119212705, 3.121851832, 4.105966215, 5.075130764, 6.042439667, 7.020500988, 8.01341629, 9.005912455, 9.976422566, 10.941539175, 11.904595977, 12.882869982, 13.886885156, 14.922848286, 16], False, 3, [1, 1, 1, 1, 1, 1, 1, 1, 1, 1, 1, 1, 1, 1, 1, 1, 1, 1, 1], False), False)
sketch2.addGeometry(Part.BSplineCurve([App.Vector(39.08996, 4.240748, 0), App.Vector(39.201078, 4.209062, 0), App.Vector(39.416395, 4.147662, 0), App.Vector(39.735377, 4.085326, 0), App.Vector(40.036895, 4.04088, 0), App.Vector(40.232975, 4.036527, 0), App.Vector(40.327941, 4.034418, 0)], [4, 1, 1, 1, 4], [0, 1.100584957, 2.132646227, 3.095596962, 4], False, 3, [1, 1, 1, 1, 1, 1, 1], False), False)
sketch2.addGeometry(Part.LineSegment(App.Vector(39.08996, 4.240748, 0), App.Vector(39.700937, 1.598521, 0)), False)
sketch2.addGeometry(Part.LineSegment(App.Vector(39.700937, 1.598521, 0), App.Vector(43.246611, 1.598521, 0)), False)
sketch2.addConstraint([
    Sketcher.Constraint("Block", 8),
    Sketcher.Constraint("Block", 9),
    Sketcher.Constraint("Block", 10),
    Sketcher.Constraint("Block", 12),
    Sketcher.Constraint("Block", 13),
    Sketcher.Constraint("Block", 18),
    Sketcher.Constraint("Block", 19),
    Sketcher.Constraint("Block", 20),
    Sketcher.Constraint("Block", 24),
    Sketcher.Constraint("Block", 25),
    Sketcher.Constraint("Block", 26),
    Sketcher.Constraint("Block", 27),
    Sketcher.Constraint("Block", 55),
    Sketcher.Constraint("Block", 56),
    Sketcher.Constraint("Block", 57),
    Sketcher.Constraint("Block", 58),
    Sketcher.Constraint("Block", 60),
    Sketcher.Constraint("Block", 61),
    Sketcher.Constraint("Block", 62),
    Sketcher.Constraint("Block", 63),
    Sketcher.Constraint("Coincident", 0, 2, 1, 1),
    Sketcher.Constraint("Coincident", 1, 2, 2, 1),
    Sketcher.Constraint("Coincident", 2, 2, 3, 1),
    Sketcher.Constraint("Coincident", 3, 2, 4, 1),
    Sketcher.Constraint("Coincident", 4, 2, 5, 1),
    Sketcher.Constraint("Coincident", 5, 2, 6, 1),
    Sketcher.Constraint("Coincident", 6, 2, 7, 1),
    Sketcher.Constraint("Coincident", 7, 2, 8, 2),
    Sketcher.Constraint("Coincident", 10, 1, 0, 1),
    Sketcher.Constraint("Coincident", 11, 2, 12, 2),
    Sketcher.Constraint("Coincident", 13, 1, 14, 1),
    Sketcher.Constraint("Coincident", 14, 2, 15, 1),
    Sketcher.Constraint("Coincident", 15, 2, 11, 1),
    Sketcher.Constraint("Coincident", 16, 2, 17, 1),
    Sketcher.Constraint("Coincident", 17, 2, 18, 2),
    Sketcher.Constraint("Coincident", 20, 1, 21, 1),
    Sketcher.Constraint("Coincident", 21, 2, 16, 1),
    Sketcher.Constraint("Coincident", 22, 2, 23, 1),
    Sketcher.Constraint("Coincident", 23, 2, 24, 2),
    Sketcher.Constraint("Coincident", 27, 1, 28, 1),
    Sketcher.Constraint("Coincident", 28, 2, 22, 1),
    Sketcher.Constraint("Coincident", 52, 2, 53, 1),
    Sketcher.Constraint("Coincident", 53, 2, 54, 1),
    Sketcher.Constraint("Coincident", 54, 2, 55, 2),
    Sketcher.Constraint("Coincident", 58, 1, 59, 1),
    Sketcher.Constraint("Coincident", 59, 2, 60, 2),
    Sketcher.Constraint("Coincident", 63, 1, 64, 1),
    Sketcher.Constraint("Coincident", 64, 2, 65, 1),
    Sketcher.Constraint("Coincident", 65, 2, 52, 1),
    Sketcher.Constraint("Horizontal", 0),
    Sketcher.Constraint("Vertical", 1),
    Sketcher.Constraint("Horizontal", 2),
    Sketcher.Constraint("Vertical", 3),
    Sketcher.Constraint("Horizontal", 4),
    Sketcher.Constraint("Horizontal", 6),
    Sketcher.Constraint("Horizontal", 11),
    Sketcher.Constraint("Vertical", 15),
    Sketcher.Constraint("Vertical", 16),
    Sketcher.Constraint("Horizontal", 17),
    Sketcher.Constraint("Horizontal", 21),
    Sketcher.Constraint("Vertical", 22),
    Sketcher.Constraint("Horizontal", 23),
    Sketcher.Constraint("Horizontal", 28),
    Sketcher.Constraint("Horizontal", 29),
    Sketcher.Constraint("Vertical", 30),
    Sketcher.Constraint("Horizontal", 31),
    Sketcher.Constraint("Vertical", 32),
    Sketcher.Constraint("Horizontal", 34),
    Sketcher.Constraint("Horizontal", 37),
    Sketcher.Constraint("Vertical", 39),
    Sketcher.Constraint("Horizontal", 40),
    Sketcher.Constraint("Horizontal", 43),
    Sketcher.Constraint("Horizontal", 46),
    Sketcher.Constraint("Horizontal", 49),
    Sketcher.Constraint("Vertical", 52),
    Sketcher.Constraint("Horizontal", 53),
    Sketcher.Constraint("Horizontal", 65),
    Sketcher.Constraint("DistanceY", 1, 1, 1, 2, Q("10 mm")),
    Sketcher.Constraint("DistanceY", 30, 1, 30, 2, Q("10 mm")),
    Sketcher.Constraint("DistanceY", 0, 2, 5, 2, Q("10 mm")),
    Sketcher.Constraint("DistanceY", 29, 2, 17, 2, Q("10 mm")),
    Sketcher.Constraint("DistanceY", 29, 2, 33, 2, Q("10 mm")),
    Sketcher.Constraint("DistanceY", 36, 2, 34, 2, Q("10 mm")),
    Sketcher.Constraint("DistanceY", 40, 2, 34, 2, Q("10 mm")),
    Sketcher.Constraint("DistanceY", 40, 2, 42, 2, Q("10 mm")),
    Sketcher.Constraint("DistanceY", 48, 2, 46, 2, Q("10 mm")),
    Sketcher.Constraint("DistanceY", 52, 2, 46, 2, Q("10 mm")),
    Sketcher.Constraint("DistanceY", 53, 2, 54, 2, Q("5 mm")),
    Sketcher.Constraint("DistanceX", 0, 2, 0, 1, Q("2.163462 mm")),
    Sketcher.Constraint("DistanceX", 2, 1, 2, 2, Q("1.025641 mm")),
    Sketcher.Constraint("DistanceX", 11, 1, 11, 2, Q("1.98117 mm")),
    Sketcher.Constraint("DistanceX", 29, 2, 29, 1, Q("1.025641 mm")),
    Sketcher.Constraint("DistanceX", 31, 1, 31, 2, Q("1.025641 mm")),
    Sketcher.Constraint("DistanceX", 37, 2, 37, 1, Q("1.530449 mm")),
    Sketcher.Constraint("DistanceX", 40, 2, 40, 1, Q("1.219952 mm")),
    Sketcher.Constraint("DistanceX", 46, 1, 46, 2, Q("1.217949 mm")),
    Sketcher.Constraint("DistanceY", 39, 2, 39, 1, Q("3.69391 mm")),
    Sketcher.Constraint("DistanceY", 52, 2, 52, 1, Q("1.025641 mm")),
    Sketcher.Constraint("DistanceX", -1, 1, 46, 2, Q("35.4902 mm")),
    Sketcher.Constraint("DistanceX", 7, 2, 5, 2, Q("2.624199 mm")),
    Sketcher.Constraint("DistanceY", 41, 2, 44, 2, Q("0.875401 mm")),
    Sketcher.Constraint("DistanceY", 50, 2, 47, 2, Q("0.875401 mm")),
    Sketcher.Constraint("DistanceX", 47, 2, 52, 2, Q("11.312099 mm")),
    Sketcher.Constraint("DistanceX", 53, 2, 64, 2, Q("0.813301 mm")),
    Sketcher.Constraint("Distance", 33, Q("6.805041 mm")),
    Sketcher.Constraint("Distance", 36, Q("7.00766 mm")),
    Sketcher.Constraint("Distance", 38, Q("5.768841 mm")),
    Sketcher.Constraint("Distance", 42, Q("6.21235 mm")),
    Sketcher.Constraint("Distance", 48, Q("5.987849 mm")),
    Sketcher.Constraint("Distance", 50, Q("4.920319 mm")),
    Sketcher.Constraint("Distance", 54, Q("5.131409 mm")),
    Sketcher.Constraint("DistanceX", 4, 1, 4, 2, Q("0.665064 mm")),
    Sketcher.Constraint("DistanceX", 6, 1, 6, 2, Q("1.304087 mm")),
    Sketcher.Constraint("DistanceX", 17, 1, 17, 2, Q("3.389423 mm")),
    Sketcher.Constraint("DistanceX", 23, 1, 23, 2, Q("0.759215 mm")),
    Sketcher.Constraint("DistanceX", 34, 1, 34, 2, Q("1.428285 mm")),
    Sketcher.Constraint("DistanceX", 43, 1, 43, 2, Q("1.221955 mm")),
    Sketcher.Constraint("DistanceX", 49, 2, 49, 1, Q("1.221955 mm")),
    Sketcher.Constraint("DistanceX", 53, 2, 53, 1, Q("4.358974 mm")),
    Sketcher.Constraint("DistanceY", 3, 2, 3, 1, Q("4.615385 mm")),
    Sketcher.Constraint("DistanceY", 15, 2, 15, 1, Q("3.333333 mm")),
    Sketcher.Constraint("DistanceY", 32, 2, 32, 1, Q("4.703526 mm")),
    Sketcher.Constraint("DistanceX", -1, 1, 31, 2, Q("16.195328 mm")),
    Sketcher.Constraint("DistanceY", -1, 1, 35, 2, Q("5.060059 mm")),
    Sketcher.Constraint("DistanceY", -1, 1, 41, 2, Q("5.478729 mm")),
    Sketcher.Constraint("DistanceX", -1, 1, 49, 2, Q("34.14004 mm")),
    Sketcher.Constraint("DistanceX", 34, 2, 40, 2, Q("4.74359 mm")),
    Sketcher.Constraint("DistanceX", 36, 2, 41, 2, Q("8.555689 mm")),
    Sketcher.Constraint("DistanceX", 41, 2, 44, 2, Q("0.612981 mm")),
])
pocket1 = doc.addObject("PartDesign::Pocket", "Pocket")
body.addObject(pocket1)
pocket1.Profile = sketch2
pocket1.Length = 2
pocket1.Reversed = True

doc.recompute()
